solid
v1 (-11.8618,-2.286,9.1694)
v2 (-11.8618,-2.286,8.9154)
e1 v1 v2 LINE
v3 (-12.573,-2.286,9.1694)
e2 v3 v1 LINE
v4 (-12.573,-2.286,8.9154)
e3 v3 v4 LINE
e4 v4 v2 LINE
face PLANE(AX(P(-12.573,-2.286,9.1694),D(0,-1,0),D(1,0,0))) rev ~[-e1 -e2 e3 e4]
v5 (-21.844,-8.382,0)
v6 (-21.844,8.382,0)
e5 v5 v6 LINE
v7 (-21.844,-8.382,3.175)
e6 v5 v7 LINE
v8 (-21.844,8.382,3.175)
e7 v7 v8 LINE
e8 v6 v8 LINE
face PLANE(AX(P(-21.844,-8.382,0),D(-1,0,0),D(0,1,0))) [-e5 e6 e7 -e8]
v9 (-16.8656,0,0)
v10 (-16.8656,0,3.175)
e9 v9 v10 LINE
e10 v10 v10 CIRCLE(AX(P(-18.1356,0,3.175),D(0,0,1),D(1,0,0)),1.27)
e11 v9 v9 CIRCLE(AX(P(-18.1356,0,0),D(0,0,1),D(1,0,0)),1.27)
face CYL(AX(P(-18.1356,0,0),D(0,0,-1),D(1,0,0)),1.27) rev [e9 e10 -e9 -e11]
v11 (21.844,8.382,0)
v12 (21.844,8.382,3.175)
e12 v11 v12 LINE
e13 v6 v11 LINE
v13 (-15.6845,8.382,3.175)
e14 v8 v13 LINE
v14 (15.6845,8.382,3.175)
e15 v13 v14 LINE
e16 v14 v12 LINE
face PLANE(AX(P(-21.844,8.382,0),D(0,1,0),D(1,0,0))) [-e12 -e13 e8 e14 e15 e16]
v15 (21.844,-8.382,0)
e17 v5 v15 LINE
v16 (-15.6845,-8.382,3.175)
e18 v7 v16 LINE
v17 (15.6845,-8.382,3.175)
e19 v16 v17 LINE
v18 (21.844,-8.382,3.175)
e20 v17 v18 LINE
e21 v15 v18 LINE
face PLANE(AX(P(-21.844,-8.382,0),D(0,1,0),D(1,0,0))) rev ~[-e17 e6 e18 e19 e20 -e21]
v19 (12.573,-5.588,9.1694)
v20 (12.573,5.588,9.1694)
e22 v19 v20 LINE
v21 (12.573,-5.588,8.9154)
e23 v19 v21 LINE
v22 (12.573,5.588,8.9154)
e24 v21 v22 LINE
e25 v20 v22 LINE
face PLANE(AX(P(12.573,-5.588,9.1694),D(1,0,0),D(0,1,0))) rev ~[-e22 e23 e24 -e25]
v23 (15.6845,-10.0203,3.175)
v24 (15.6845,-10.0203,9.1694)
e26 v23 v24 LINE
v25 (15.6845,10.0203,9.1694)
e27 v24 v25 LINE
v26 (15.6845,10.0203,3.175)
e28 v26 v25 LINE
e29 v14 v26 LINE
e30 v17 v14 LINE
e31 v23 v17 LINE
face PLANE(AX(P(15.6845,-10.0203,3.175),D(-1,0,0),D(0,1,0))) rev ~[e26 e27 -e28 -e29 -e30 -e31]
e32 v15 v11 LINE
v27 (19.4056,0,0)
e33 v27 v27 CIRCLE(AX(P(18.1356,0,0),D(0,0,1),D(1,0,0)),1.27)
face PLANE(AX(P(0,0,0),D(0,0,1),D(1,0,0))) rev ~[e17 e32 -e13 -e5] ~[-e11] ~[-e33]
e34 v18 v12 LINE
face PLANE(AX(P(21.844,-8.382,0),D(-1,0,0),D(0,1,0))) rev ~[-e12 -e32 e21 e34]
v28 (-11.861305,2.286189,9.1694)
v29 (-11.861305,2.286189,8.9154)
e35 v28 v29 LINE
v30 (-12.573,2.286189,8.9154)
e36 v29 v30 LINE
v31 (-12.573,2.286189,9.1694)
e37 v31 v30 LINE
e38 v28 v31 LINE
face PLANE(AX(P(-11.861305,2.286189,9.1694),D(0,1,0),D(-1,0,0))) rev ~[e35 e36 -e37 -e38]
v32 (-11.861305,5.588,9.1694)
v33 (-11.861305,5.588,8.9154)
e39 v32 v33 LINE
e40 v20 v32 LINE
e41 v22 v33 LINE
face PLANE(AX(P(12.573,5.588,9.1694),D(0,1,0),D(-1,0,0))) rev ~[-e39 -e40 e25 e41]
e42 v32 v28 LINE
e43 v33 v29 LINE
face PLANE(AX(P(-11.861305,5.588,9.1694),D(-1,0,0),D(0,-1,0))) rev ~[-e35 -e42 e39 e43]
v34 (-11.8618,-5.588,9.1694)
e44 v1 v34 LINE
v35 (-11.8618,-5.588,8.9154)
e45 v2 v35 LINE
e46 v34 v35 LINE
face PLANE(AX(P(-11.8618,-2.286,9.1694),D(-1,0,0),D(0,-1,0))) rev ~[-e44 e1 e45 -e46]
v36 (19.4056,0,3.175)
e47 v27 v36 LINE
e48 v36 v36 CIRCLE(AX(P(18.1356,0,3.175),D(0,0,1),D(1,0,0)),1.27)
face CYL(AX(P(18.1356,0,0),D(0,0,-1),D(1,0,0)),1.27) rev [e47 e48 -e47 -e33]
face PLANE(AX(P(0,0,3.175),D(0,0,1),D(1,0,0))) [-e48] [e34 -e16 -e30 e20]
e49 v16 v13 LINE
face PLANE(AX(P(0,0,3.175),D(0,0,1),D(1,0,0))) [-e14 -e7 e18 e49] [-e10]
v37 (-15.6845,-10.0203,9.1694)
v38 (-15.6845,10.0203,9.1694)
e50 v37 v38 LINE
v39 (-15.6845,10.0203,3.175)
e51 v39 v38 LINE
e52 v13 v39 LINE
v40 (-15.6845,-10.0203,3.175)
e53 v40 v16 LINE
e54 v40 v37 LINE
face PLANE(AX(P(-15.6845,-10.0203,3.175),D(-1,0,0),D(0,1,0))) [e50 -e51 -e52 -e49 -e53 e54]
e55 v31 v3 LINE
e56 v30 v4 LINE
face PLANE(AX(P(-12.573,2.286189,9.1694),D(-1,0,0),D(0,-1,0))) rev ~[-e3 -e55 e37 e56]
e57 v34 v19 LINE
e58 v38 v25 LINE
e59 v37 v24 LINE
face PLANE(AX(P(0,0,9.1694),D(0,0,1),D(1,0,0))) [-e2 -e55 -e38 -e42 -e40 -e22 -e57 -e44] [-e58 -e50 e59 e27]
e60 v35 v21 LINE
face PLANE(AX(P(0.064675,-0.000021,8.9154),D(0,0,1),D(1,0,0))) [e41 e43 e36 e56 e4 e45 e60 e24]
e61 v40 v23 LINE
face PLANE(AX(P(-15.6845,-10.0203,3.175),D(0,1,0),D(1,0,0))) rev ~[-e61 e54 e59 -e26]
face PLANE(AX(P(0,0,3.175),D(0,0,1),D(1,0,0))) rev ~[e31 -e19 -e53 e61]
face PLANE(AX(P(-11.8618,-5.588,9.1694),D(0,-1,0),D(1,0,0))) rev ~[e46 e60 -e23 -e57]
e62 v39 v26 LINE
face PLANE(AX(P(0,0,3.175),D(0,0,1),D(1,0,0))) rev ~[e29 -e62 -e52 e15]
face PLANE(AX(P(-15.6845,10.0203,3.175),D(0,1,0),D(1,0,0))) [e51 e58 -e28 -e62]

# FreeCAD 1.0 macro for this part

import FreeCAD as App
import Part
import Sketcher

V = App.Vector
Q = App.Units.Quantity


def add_polygon(sketch, points):
    """Adds a closed chain of lines whose ends are joined by coincident constraints."""
    first, n = sketch.GeometryCount, len(points)
    for a, b in zip(points, points[1:] + points[:1]):
        sketch.addGeometry(Part.LineSegment(App.Vector(*a, 0), App.Vector(*b, 0)), False)
    for i in range(n):
        sketch.addConstraint(Sketcher.Constraint("Coincident", first + i, 2, first + (i + 1) % n, 1))

doc = App.newDocument("Part")
body = doc.addObject("PartDesign::Body", "Body")

# Sketch on XY plane
sketch1 = doc.addObject("Sketcher::SketchObject", "Sketch")
body.addObject(sketch1)
sketch1.AttachmentSupport = (doc.XY_Plane, [""])
sketch1.MapMode = "FlatFace"
add_polygon(sketch1, [(-21.8, 8.4), (-21.8, -8.4), (21.8, -8.4), (21.8, 8.4)])  # lines 0-3
sketch1.addGeometry(Part.Circle(V(-18.1, 0, 0), V(0, 0, 1), 1.3), False)  # 4
sketch1.addGeometry(Part.Circle(V(18.1, 0, 0), V(0, 0, 1), 1.3), False)  # 5
sketch1.addConstraint(Sketcher.Constraint("Vertical", 0))
sketch1.addConstraint(Sketcher.Constraint("Horizontal", 1))
sketch1.addConstraint(Sketcher.Constraint("Vertical", 2))
sketch1.addConstraint(Sketcher.Constraint("Horizontal", 3))
sketch1.addConstraint(Sketcher.Constraint("Equal", 4, 5))
sketch1.addConstraint(Sketcher.Constraint("Symmetric", 4, 3, 5, 3, -1, 1))
sketch1.addConstraint(Sketcher.Constraint("Symmetric", 0, 2, 2, 2, -1, 1))
sketch1.addConstraint(Sketcher.Constraint("PointOnObject", 4, 3, -1))
sketch1.addConstraint(Sketcher.Constraint("Diameter", 4, Q("0.1 in")))
sketch1.addConstraint(Sketcher.Constraint("DistanceX", 1, 1, 1, 2, Q("1.72 in")))
sketch1.addConstraint(Sketcher.Constraint("DistanceY", 0, 2, 0, 1, Q("0.66 in")))
sketch1.addConstraint(Sketcher.Constraint("DistanceX", 4, 3, -1, 1, Q("0.714 in")))
pad1 = doc.addObject("PartDesign::Pad", "Pad")
body.addObject(pad1)
pad1.Profile = sketch1
pad1.Length = Q("0.125 in")

# Sketch on XY plane
sketch2 = doc.addObject("Sketcher::SketchObject", "Sketch001")
body.addObject(sketch2)
sketch2.AttachmentSupport = (doc.XY_Plane, [""])
sketch2.MapMode = "FlatFace"
sketch2.AttachmentOffset = App.Placement(V(0, 0, 0.125 * 25.4), App.Rotation())
add_polygon(sketch2, [(-16, 10), (-16, -10), (16, -10), (16, 10)])  # lines 0-3
sketch2.addConstraint(Sketcher.Constraint("Vertical", 0))
sketch2.addConstraint(Sketcher.Constraint("Horizontal", 1))
sketch2.addConstraint(Sketcher.Constraint("Vertical", 2))
sketch2.addConstraint(Sketcher.Constraint("Horizontal", 3))
sketch2.addConstraint(Sketcher.Constraint("Symmetric", 0, 2, 2, 2, -1, 1))
sketch2.addConstraint(Sketcher.Constraint("DistanceX", 1, 1, 1, 2, Q("1.235 in")))
sketch2.addConstraint(Sketcher.Constraint("DistanceY", 0, 2, 0, 1, Q("0.789 in")))
pad2 = doc.addObject("PartDesign::Pad", "Pad001")
body.addObject(pad2)
pad2.Profile = sketch2
pad2.Length = Q("0.236 in")

# Sketch on XY plane
sketch3 = doc.addObject("Sketcher::SketchObject", "Sketch002")
body.addObject(sketch3)
sketch3.AttachmentSupport = (doc.XY_Plane, [""])
sketch3.MapMode = "FlatFace"
sketch3.AttachmentOffset = App.Placement(V(0, 0, 0.361 * 25.4), App.Rotation())
add_polygon(sketch3, [(-11.9, -5.6), (12.6, -5.6), (12.6, 5.6), (-11.9, 5.6), (-11.9, 2.3), (-12.6, 2.3), (-12.6, -2.3), (-11.9, -2.3)])  # lines 0-7
sketch3.addConstraint(Sketcher.Constraint("Horizontal", 0))
sketch3.addConstraint(Sketcher.Constraint("Vertical", 1))
sketch3.addConstraint(Sketcher.Constraint("Horizontal", 2))
sketch3.addConstraint(Sketcher.Constraint("Vertical", 3))
sketch3.addConstraint(Sketcher.Constraint("Horizontal", 4))
sketch3.addConstraint(Sketcher.Constraint("Vertical", 5))
sketch3.addConstraint(Sketcher.Constraint("Horizontal", 6))
sketch3.addConstraint(Sketcher.Constraint("Vertical", 7))
sketch3.addConstraint(Sketcher.Constraint("DistanceY", 1, 1, 1, 2, Q("0.44 in")))
sketch3.addConstraint(Sketcher.Constraint("DistanceY", 7, 2, 7, 1, Q("0.13 in")))
sketch3.addConstraint(Sketcher.Constraint("DistanceX", 0, 1, 0, 2, Q("0.962 in")))
sketch3.addConstraint(Sketcher.Constraint("DistanceX", 6, 1, 6, 2, Q("0.028 in")))
sketch3.addConstraint(Sketcher.Constraint("DistanceY", 0, 2, -1, 1, Q("0.22 in")))
sketch3.addConstraint(Sketcher.Constraint("DistanceX", -1, 1, 0, 2, Q("0.495 in")))
sketch3.addConstraint(Sketcher.Constraint("DistanceY", 3, 2, 3, 1, Q("3.301811 mm")))
sketch3.addConstraint(Sketcher.Constraint("DistanceX", 2, 2, 2, 1, Q("24.434305 mm")))
pocket1 = doc.addObject("PartDesign::Pocket", "Pocket")
body.addObject(pocket1)
pocket1.Profile = sketch3
pocket1.Length = Q("0.01 in")

doc.recompute()
